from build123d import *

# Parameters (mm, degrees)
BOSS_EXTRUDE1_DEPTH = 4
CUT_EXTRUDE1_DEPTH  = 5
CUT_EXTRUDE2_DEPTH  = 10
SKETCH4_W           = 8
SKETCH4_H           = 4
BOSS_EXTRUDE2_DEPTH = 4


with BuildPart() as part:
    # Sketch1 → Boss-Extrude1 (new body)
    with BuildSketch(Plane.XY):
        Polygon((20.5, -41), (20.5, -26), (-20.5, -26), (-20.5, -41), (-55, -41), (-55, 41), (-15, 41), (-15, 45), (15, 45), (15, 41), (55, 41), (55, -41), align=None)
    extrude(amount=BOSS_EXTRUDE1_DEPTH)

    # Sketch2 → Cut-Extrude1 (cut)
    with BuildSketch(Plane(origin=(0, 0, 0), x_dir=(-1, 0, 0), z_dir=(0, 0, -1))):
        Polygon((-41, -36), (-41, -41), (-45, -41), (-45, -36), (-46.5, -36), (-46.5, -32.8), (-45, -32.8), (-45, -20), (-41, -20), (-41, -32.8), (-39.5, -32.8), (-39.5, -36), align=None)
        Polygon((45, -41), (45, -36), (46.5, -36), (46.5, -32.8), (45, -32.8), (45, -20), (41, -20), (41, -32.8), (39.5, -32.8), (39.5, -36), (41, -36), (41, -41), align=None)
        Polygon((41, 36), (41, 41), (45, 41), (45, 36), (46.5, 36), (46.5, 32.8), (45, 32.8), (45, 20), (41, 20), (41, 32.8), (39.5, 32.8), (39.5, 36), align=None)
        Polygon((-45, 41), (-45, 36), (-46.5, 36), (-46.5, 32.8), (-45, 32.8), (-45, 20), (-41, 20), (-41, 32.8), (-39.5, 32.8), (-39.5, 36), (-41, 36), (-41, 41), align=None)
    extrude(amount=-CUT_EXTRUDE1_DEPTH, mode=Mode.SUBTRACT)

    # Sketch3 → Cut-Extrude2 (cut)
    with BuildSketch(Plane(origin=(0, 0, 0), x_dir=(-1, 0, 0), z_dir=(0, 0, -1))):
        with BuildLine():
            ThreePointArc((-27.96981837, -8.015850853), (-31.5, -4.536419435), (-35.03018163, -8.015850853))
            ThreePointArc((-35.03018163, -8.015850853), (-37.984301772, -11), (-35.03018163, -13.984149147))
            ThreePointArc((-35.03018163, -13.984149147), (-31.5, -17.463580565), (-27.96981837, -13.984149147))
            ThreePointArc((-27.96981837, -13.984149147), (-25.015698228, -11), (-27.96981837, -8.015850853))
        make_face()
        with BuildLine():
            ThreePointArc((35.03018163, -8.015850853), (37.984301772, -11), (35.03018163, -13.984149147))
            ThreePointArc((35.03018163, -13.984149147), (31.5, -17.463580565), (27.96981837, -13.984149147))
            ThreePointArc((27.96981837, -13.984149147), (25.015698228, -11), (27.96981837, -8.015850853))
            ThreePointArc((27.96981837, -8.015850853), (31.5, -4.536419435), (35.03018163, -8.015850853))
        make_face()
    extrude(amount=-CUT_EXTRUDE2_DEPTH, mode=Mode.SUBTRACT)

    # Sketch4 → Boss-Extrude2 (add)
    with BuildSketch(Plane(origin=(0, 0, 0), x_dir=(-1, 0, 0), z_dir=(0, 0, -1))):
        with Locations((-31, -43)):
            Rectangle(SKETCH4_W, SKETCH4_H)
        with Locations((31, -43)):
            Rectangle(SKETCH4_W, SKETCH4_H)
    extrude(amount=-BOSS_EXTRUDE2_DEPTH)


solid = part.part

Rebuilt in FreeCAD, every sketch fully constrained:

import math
import FreeCAD as App
import Part
import Sketcher
from FreeCAD import Vector

doc = App.newDocument("Part")
body = doc.addObject("PartDesign::Body", "Body")

# Sketch on XY plane
sketch1 = body.newObject("Sketcher::SketchObject", "Sketch")
sketch1.AttachmentSupport = (doc.getObject("XY_Plane"), [""])
sketch1.MapMode = "FlatFace"
sketch1.addGeometry(Part.LineSegment(Vector(20.5, -26, 0), Vector(20.5, -41, 0)), False)
sketch1.addGeometry(Part.LineSegment(Vector(20.5, -41, 0), Vector(55, -41, 0)), False)
sketch1.addGeometry(Part.LineSegment(Vector(55, -41, 0), Vector(55, 41, 0)), False)
sketch1.addGeometry(Part.LineSegment(Vector(55, 41, 0), Vector(15, 41, 0)), False)
sketch1.addGeometry(Part.LineSegment(Vector(15, 41, 0), Vector(15, 45, 0)), False)
sketch1.addGeometry(Part.LineSegment(Vector(15, 45, 0), Vector(-15, 45, 0)), False)
sketch1.addGeometry(Part.LineSegment(Vector(-15, 45, 0), Vector(-15, 41, 0)), False)
sketch1.addGeometry(Part.LineSegment(Vector(-15, 41, 0), Vector(-55, 41, 0)), False)
sketch1.addGeometry(Part.LineSegment(Vector(-55, 41, 0), Vector(-55, -41, 0)), False)
sketch1.addGeometry(Part.LineSegment(Vector(-55, -41, 0), Vector(-20.5, -41, 0)), False)
sketch1.addGeometry(Part.LineSegment(Vector(-20.5, -41, 0), Vector(-20.5, -26, 0)), False)
sketch1.addGeometry(Part.LineSegment(Vector(-20.5, -26, 0), Vector(20.5, -26, 0)), False)
sketch1.addConstraint(Sketcher.Constraint("Coincident", 0, 2, 1, 1))
sketch1.addConstraint(Sketcher.Constraint("Coincident", 1, 2, 2, 1))
sketch1.addConstraint(Sketcher.Constraint("Coincident", 2, 2, 3, 1))
sketch1.addConstraint(Sketcher.Constraint("Coincident", 3, 2, 4, 1))
sketch1.addConstraint(Sketcher.Constraint("Coincident", 4, 2, 5, 1))
sketch1.addConstraint(Sketcher.Constraint("Coincident", 5, 2, 6, 1))
sketch1.addConstraint(Sketcher.Constraint("Coincident", 6, 2, 7, 1))
sketch1.addConstraint(Sketcher.Constraint("Coincident", 7, 2, 8, 1))
sketch1.addConstraint(Sketcher.Constraint("Coincident", 8, 2, 9, 1))
sketch1.addConstraint(Sketcher.Constraint("Coincident", 9, 2, 10, 1))
sketch1.addConstraint(Sketcher.Constraint("Coincident", 10, 2, 11, 1))
sketch1.addConstraint(Sketcher.Constraint("Coincident", 11, 2, 0, 1))
sketch1.addConstraint(Sketcher.Constraint("Vertical", 0))
sketch1.addConstraint(Sketcher.Constraint("Horizontal", 1))
sketch1.addConstraint(Sketcher.Constraint("Vertical", 2))
sketch1.addConstraint(Sketcher.Constraint("Horizontal", 3))
sketch1.addConstraint(Sketcher.Constraint("Vertical", 4))
sketch1.addConstraint(Sketcher.Constraint("Horizontal", 5))
sketch1.addConstraint(Sketcher.Constraint("Vertical", 6))
sketch1.addConstraint(Sketcher.Constraint("Horizontal", 7))
sketch1.addConstraint(Sketcher.Constraint("Vertical", 8))
sketch1.addConstraint(Sketcher.Constraint("Horizontal", 9))
sketch1.addConstraint(Sketcher.Constraint("Vertical", 10))
sketch1.addConstraint(Sketcher.Constraint("Horizontal", 11))
sketch1.addConstraint(Sketcher.Constraint("Symmetric", 1, 2, 7, 2, -1, 1))
sketch1.addConstraint(Sketcher.Constraint("Symmetric", 3, 2, 6, 2, -2))
sketch1.addConstraint(Sketcher.Constraint("Symmetric", 0, 2, 9, 2, -2))
sketch1.addConstraint(Sketcher.Constraint("DistanceX", 3, 2, 3, 1, 40.0))
sketch1.addConstraint(Sketcher.Constraint("DistanceX", 5, 2, 5, 1, 30.0))
sketch1.addConstraint(Sketcher.Constraint("DistanceX", 11, 1, 11, 2, 41.0))
sketch1.addConstraint(Sketcher.Constraint("DistanceY", 0, 2, 0, 1, 15.0))
sketch1.addConstraint(Sketcher.Constraint("DistanceY", 2, 1, 2, 2, 82.0))
sketch1.addConstraint(Sketcher.Constraint("DistanceY", 4, 1, 4, 2, 4.0))
pad1 = body.newObject("PartDesign::Pad", "Pad")
pad1.Profile = sketch1
pad1.Length = 4

# Sketch on XY plane
sketch2 = body.newObject("Sketcher::SketchObject", "Sketch001")
sketch2.AttachmentSupport = (doc.getObject("XY_Plane"), [""])
sketch2.MapMode = "FlatFace"
sketch2.addGeometry(Part.LineSegment(Vector(41, -41, 0), Vector(41, -36, 0)), False)
sketch2.addGeometry(Part.LineSegment(Vector(41, -36, 0), Vector(39.5, -36, 0)), False)
sketch2.addGeometry(Part.LineSegment(Vector(39.5, -36, 0), Vector(39.5, -32.8, 0)), False)
sketch2.addGeometry(Part.LineSegment(Vector(39.5, -32.8, 0), Vector(41, -32.8, 0)), False)
sketch2.addGeometry(Part.LineSegment(Vector(41, -32.8, 0), Vector(41, -20, 0)), False)
sketch2.addGeometry(Part.LineSegment(Vector(41, -20, 0), Vector(45, -20, 0)), False)
sketch2.addGeometry(Part.LineSegment(Vector(45, -20, 0), Vector(45, -32.8, 0)), False)
sketch2.addGeometry(Part.LineSegment(Vector(45, -32.8, 0), Vector(46.5, -32.8, 0)), False)
sketch2.addGeometry(Part.LineSegment(Vector(46.5, -32.8, 0), Vector(46.5, -36, 0)), False)
sketch2.addGeometry(Part.LineSegment(Vector(46.5, -36, 0), Vector(45, -36, 0)), False)
sketch2.addGeometry(Part.LineSegment(Vector(45, -36, 0), Vector(45, -41, 0)), False)
sketch2.addGeometry(Part.LineSegment(Vector(45, -41, 0), Vector(41, -41, 0)), False)
sketch2.addGeometry(Part.LineSegment(Vector(-45, -41, 0), Vector(-45, -36, 0)), False)
sketch2.addGeometry(Part.LineSegment(Vector(-45, -36, 0), Vector(-46.5, -36, 0)), False)
sketch2.addGeometry(Part.LineSegment(Vector(-46.5, -36, 0), Vector(-46.5, -32.8, 0)), False)
sketch2.addGeometry(Part.LineSegment(Vector(-46.5, -32.8, 0), Vector(-45, -32.8, 0)), False)
sketch2.addGeometry(Part.LineSegment(Vector(-45, -32.8, 0), Vector(-45, -20, 0)), False)
sketch2.addGeometry(Part.LineSegment(Vector(-45, -20, 0), Vector(-41, -20, 0)), False)
sketch2.addGeometry(Part.LineSegment(Vector(-41, -20, 0), Vector(-41, -32.8, 0)), False)
sketch2.addGeometry(Part.LineSegment(Vector(-41, -32.8, 0), Vector(-39.5, -32.8, 0)), False)
sketch2.addGeometry(Part.LineSegment(Vector(-39.5, -32.8, 0), Vector(-39.5, -36, 0)), False)
sketch2.addGeometry(Part.LineSegment(Vector(-39.5, -36, 0), Vector(-41, -36, 0)), False)
sketch2.addGeometry(Part.LineSegment(Vector(-41, -36, 0), Vector(-41, -41, 0)), False)
sketch2.addGeometry(Part.LineSegment(Vector(-41, -41, 0), Vector(-45, -41, 0)), False)
sketch2.addGeometry(Part.LineSegment(Vector(-41, 41, 0), Vector(-41, 36, 0)), False)
sketch2.addGeometry(Part.LineSegment(Vector(-41, 36, 0), Vector(-39.5, 36, 0)), False)
sketch2.addGeometry(Part.LineSegment(Vector(-39.5, 36, 0), Vector(-39.5, 32.8, 0)), False)
sketch2.addGeometry(Part.LineSegment(Vector(-39.5, 32.8, 0), Vector(-41, 32.8, 0)), False)
sketch2.addGeometry(Part.LineSegment(Vector(-41, 32.8, 0), Vector(-41, 20, 0)), False)
sketch2.addGeometry(Part.LineSegment(Vector(-41, 20, 0), Vector(-45, 20, 0)), False)
sketch2.addGeometry(Part.LineSegment(Vector(-45, 20, 0), Vector(-45, 32.8, 0)), False)
sketch2.addGeometry(Part.LineSegment(Vector(-45, 32.8, 0), Vector(-46.5, 32.8, 0)), False)
sketch2.addGeometry(Part.LineSegment(Vector(-46.5, 32.8, 0), Vector(-46.5, 36, 0)), False)
sketch2.addGeometry(Part.LineSegment(Vector(-46.5, 36, 0), Vector(-45, 36, 0)), False)
sketch2.addGeometry(Part.LineSegment(Vector(-45, 36, 0), Vector(-45, 41, 0)), False)
sketch2.addGeometry(Part.LineSegment(Vector(-45, 41, 0), Vector(-41, 41, 0)), False)
sketch2.addGeometry(Part.LineSegment(Vector(45, 41, 0), Vector(45, 36, 0)), False)
sketch2.addGeometry(Part.LineSegment(Vector(45, 36, 0), Vector(46.5, 36, 0)), False)
sketch2.addGeometry(Part.LineSegment(Vector(46.5, 36, 0), Vector(46.5, 32.8, 0)), False)
sketch2.addGeometry(Part.LineSegment(Vector(46.5, 32.8, 0), Vector(45, 32.8, 0)), False)
sketch2.addGeometry(Part.LineSegment(Vector(45, 32.8, 0), Vector(45, 20, 0)), False)
sketch2.addGeometry(Part.LineSegment(Vector(45, 20, 0), Vector(41, 20, 0)), False)
sketch2.addGeometry(Part.LineSegment(Vector(41, 20, 0), Vector(41, 32.8, 0)), False)
sketch2.addGeometry(Part.LineSegment(Vector(41, 32.8, 0), Vector(39.5, 32.8, 0)), False)
sketch2.addGeometry(Part.LineSegment(Vector(39.5, 32.8, 0), Vector(39.5, 36, 0)), False)
sketch2.addGeometry(Part.LineSegment(Vector(39.5, 36, 0), Vector(41, 36, 0)), False)
sketch2.addGeometry(Part.LineSegment(Vector(41, 36, 0), Vector(41, 41, 0)), False)
sketch2.addGeometry(Part.LineSegment(Vector(41, 41, 0), Vector(45, 41, 0)), False)
sketch2.addConstraint(Sketcher.Constraint("Coincident", 0, 2, 1, 1))
sketch2.addConstraint(Sketcher.Constraint("Coincident", 1, 2, 2, 1))
sketch2.addConstraint(Sketcher.Constraint("Coincident", 2, 2, 3, 1))
sketch2.addConstraint(Sketcher.Constraint("Coincident", 3, 2, 4, 1))
sketch2.addConstraint(Sketcher.Constraint("Coincident", 4, 2, 5, 1))
sketch2.addConstraint(Sketcher.Constraint("Coincident", 5, 2, 6, 1))
sketch2.addConstraint(Sketcher.Constraint("Coincident", 6, 2, 7, 1))
sketch2.addConstraint(Sketcher.Constraint("Coincident", 7, 2, 8, 1))
sketch2.addConstraint(Sketcher.Constraint("Coincident", 8, 2, 9, 1))
sketch2.addConstraint(Sketcher.Constraint("Coincident", 9, 2, 10, 1))
sketch2.addConstraint(Sketcher.Constraint("Coincident", 10, 2, 11, 1))
sketch2.addConstraint(Sketcher.Constraint("Coincident", 11, 2, 0, 1))
sketch2.addConstraint(Sketcher.Constraint("Coincident", 12, 2, 13, 1))
sketch2.addConstraint(Sketcher.Constraint("Coincident", 13, 2, 14, 1))
sketch2.addConstraint(Sketcher.Constraint("Coincident", 14, 2, 15, 1))
sketch2.addConstraint(Sketcher.Constraint("Coincident", 15, 2, 16, 1))
sketch2.addConstraint(Sketcher.Constraint("Coincident", 16, 2, 17, 1))
sketch2.addConstraint(Sketcher.Constraint("Coincident", 17, 2, 18, 1))
sketch2.addConstraint(Sketcher.Constraint("Coincident", 18, 2, 19, 1))
sketch2.addConstraint(Sketcher.Constraint("Coincident", 19, 2, 20, 1))
sketch2.addConstraint(Sketcher.Constraint("Coincident", 20, 2, 21, 1))
sketch2.addConstraint(Sketcher.Constraint("Coincident", 21, 2, 22, 1))
sketch2.addConstraint(Sketcher.Constraint("Coincident", 22, 2, 23, 1))
sketch2.addConstraint(Sketcher.Constraint("Coincident", 23, 2, 12, 1))
sketch2.addConstraint(Sketcher.Constraint("Coincident", 24, 2, 25, 1))
sketch2.addConstraint(Sketcher.Constraint("Coincident", 25, 2, 26, 1))
sketch2.addConstraint(Sketcher.Constraint("Coincident", 26, 2, 27, 1))
sketch2.addConstraint(Sketcher.Constraint("Coincident", 27, 2, 28, 1))
sketch2.addConstraint(Sketcher.Constraint("Coincident", 28, 2, 29, 1))
sketch2.addConstraint(Sketcher.Constraint("Coincident", 29, 2, 30, 1))
sketch2.addConstraint(Sketcher.Constraint("Coincident", 30, 2, 31, 1))
sketch2.addConstraint(Sketcher.Constraint("Coincident", 31, 2, 32, 1))
sketch2.addConstraint(Sketcher.Constraint("Coincident", 32, 2, 33, 1))
sketch2.addConstraint(Sketcher.Constraint("Coincident", 33, 2, 34, 1))
sketch2.addConstraint(Sketcher.Constraint("Coincident", 34, 2, 35, 1))
sketch2.addConstraint(Sketcher.Constraint("Coincident", 35, 2, 24, 1))
sketch2.addConstraint(Sketcher.Constraint("Coincident", 36, 2, 37, 1))
sketch2.addConstraint(Sketcher.Constraint("Coincident", 37, 2, 38, 1))
sketch2.addConstraint(Sketcher.Constraint("Coincident", 38, 2, 39, 1))
sketch2.addConstraint(Sketcher.Constraint("Coincident", 39, 2, 40, 1))
sketch2.addConstraint(Sketcher.Constraint("Coincident", 40, 2, 41, 1))
sketch2.addConstraint(Sketcher.Constraint("Coincident", 41, 2, 42, 1))
sketch2.addConstraint(Sketcher.Constraint("Coincident", 42, 2, 43, 1))
sketch2.addConstraint(Sketcher.Constraint("Coincident", 43, 2, 44, 1))
sketch2.addConstraint(Sketcher.Constraint("Coincident", 44, 2, 45, 1))
sketch2.addConstraint(Sketcher.Constraint("Coincident", 45, 2, 46, 1))
sketch2.addConstraint(Sketcher.Constraint("Coincident", 46, 2, 47, 1))
sketch2.addConstraint(Sketcher.Constraint("Coincident", 47, 2, 36, 1))
sketch2.addConstraint(Sketcher.Constraint("Vertical", 0))
sketch2.addConstraint(Sketcher.Constraint("Horizontal", 1))
sketch2.addConstraint(Sketcher.Constraint("Vertical", 2))
sketch2.addConstraint(Sketcher.Constraint("Horizontal", 3))
sketch2.addConstraint(Sketcher.Constraint("Vertical", 4))
sketch2.addConstraint(Sketcher.Constraint("Horizontal", 5))
sketch2.addConstraint(Sketcher.Constraint("Vertical", 6))
sketch2.addConstraint(Sketcher.Constraint("Horizontal", 7))
sketch2.addConstraint(Sketcher.Constraint("Vertical", 8))
sketch2.addConstraint(Sketcher.Constraint("Horizontal", 9))
sketch2.addConstraint(Sketcher.Constraint("Vertical", 10))
sketch2.addConstraint(Sketcher.Constraint("Horizontal", 11))
sketch2.addConstraint(Sketcher.Constraint("Vertical", 12))
sketch2.addConstraint(Sketcher.Constraint("Horizontal", 13))
sketch2.addConstraint(Sketcher.Constraint("Vertical", 14))
sketch2.addConstraint(Sketcher.Constraint("Horizontal", 15))
sketch2.addConstraint(Sketcher.Constraint("Vertical", 16))
sketch2.addConstraint(Sketcher.Constraint("Horizontal", 17))
sketch2.addConstraint(Sketcher.Constraint("Vertical", 18))
sketch2.addConstraint(Sketcher.Constraint("Horizontal", 19))
sketch2.addConstraint(Sketcher.Constraint("Vertical", 20))
sketch2.addConstraint(Sketcher.Constraint("Horizontal", 21))
sketch2.addConstraint(Sketcher.Constraint("Vertical", 22))
sketch2.addConstraint(Sketcher.Constraint("Horizontal", 23))
sketch2.addConstraint(Sketcher.Constraint("Vertical", 24))
sketch2.addConstraint(Sketcher.Constraint("Horizontal", 25))
sketch2.addConstraint(Sketcher.Constraint("Vertical", 26))
sketch2.addConstraint(Sketcher.Constraint("Horizontal", 27))
sketch2.addConstraint(Sketcher.Constraint("Vertical", 28))
sketch2.addConstraint(Sketcher.Constraint("Horizontal", 29))
sketch2.addConstraint(Sketcher.Constraint("Vertical", 30))
sketch2.addConstraint(Sketcher.Constraint("Horizontal", 31))
sketch2.addConstraint(Sketcher.Constraint("Vertical", 32))
sketch2.addConstraint(Sketcher.Constraint("Horizontal", 33))
sketch2.addConstraint(Sketcher.Constraint("Vertical", 34))
sketch2.addConstraint(Sketcher.Constraint("Horizontal", 35))
sketch2.addConstraint(Sketcher.Constraint("Vertical", 36))
sketch2.addConstraint(Sketcher.Constraint("Horizontal", 37))
sketch2.addConstraint(Sketcher.Constraint("Vertical", 38))
sketch2.addConstraint(Sketcher.Constraint("Horizontal", 39))
sketch2.addConstraint(Sketcher.Constraint("Vertical", 40))
sketch2.addConstraint(Sketcher.Constraint("Horizontal", 41))
sketch2.addConstraint(Sketcher.Constraint("Vertical", 42))
sketch2.addConstraint(Sketcher.Constraint("Horizontal", 43))
sketch2.addConstraint(Sketcher.Constraint("Vertical", 44))
sketch2.addConstraint(Sketcher.Constraint("Horizontal", 45))
sketch2.addConstraint(Sketcher.Constraint("Vertical", 46))
sketch2.addConstraint(Sketcher.Constraint("Horizontal", 47))
sketch2.addConstraint(Sketcher.Constraint("Symmetric", 0, 2, 24, 2, -1, 1))
sketch2.addConstraint(Sketcher.Constraint("Symmetric", 2, 2, 26, 2, -1, 1))
sketch2.addConstraint(Sketcher.Constraint("Symmetric", 4, 2, 28, 2, -1, 1))
sketch2.addConstraint(Sketcher.Constraint("Symmetric", 6, 2, 30, 2, -1, 1))
sketch2.addConstraint(Sketcher.Constraint("Symmetric", 8, 2, 32, 2, -1, 1))
sketch2.addConstraint(Sketcher.Constraint("Symmetric", 10, 2, 34, 2, -1, 1))
sketch2.addConstraint(Sketcher.Constraint("Symmetric", 12, 2, 36, 2, -1, 1))
sketch2.addConstraint(Sketcher.Constraint("Symmetric", 14, 2, 38, 2, -1, 1))
sketch2.addConstraint(Sketcher.Constraint("Symmetric", 16, 2, 40, 2, -1, 1))
sketch2.addConstraint(Sketcher.Constraint("Symmetric", 18, 2, 42, 2, -1, 1))
sketch2.addConstraint(Sketcher.Constraint("Symmetric", 20, 2, 44, 2, -1, 1))
sketch2.addConstraint(Sketcher.Constraint("Symmetric", 22, 2, 46, 2, -1, 1))
sketch2.addConstraint(Sketcher.Constraint("Symmetric", 9, 2, 12, 2, -2))
sketch2.addConstraint(Sketcher.Constraint("Symmetric", 7, 2, 14, 2, -2))
sketch2.addConstraint(Sketcher.Constraint("Symmetric", 5, 2, 16, 2, -2))
sketch2.addConstraint(Sketcher.Constraint("Symmetric", 3, 2, 18, 2, -2))
sketch2.addConstraint(Sketcher.Constraint("Symmetric", 1, 2, 20, 2, -2))
sketch2.addConstraint(Sketcher.Constraint("Symmetric", 11, 2, 22, 2, -2))
sketch2.addConstraint(Sketcher.Constraint("Horizontal", 3, 2, 6, 2))
sketch2.addConstraint(Sketcher.Constraint("Horizontal", 1, 2, 8, 2))
sketch2.addConstraint(Sketcher.Constraint("Vertical", 0, 2, 3, 2))
sketch2.addConstraint(Sketcher.Constraint("Vertical", 6, 2, 9, 2))
sketch2.addConstraint(Sketcher.Constraint("Equal", 3, 7))
sketch2.addConstraint(Sketcher.Constraint("DistanceX", 5, 1, 5, 2, 4.0))
sketch2.addConstraint(Sketcher.Constraint("DistanceY", 0, 1, 0, 2, 5.0))
sketch2.addConstraint(Sketcher.Constraint("DistanceX", 1, 2, 1, 1, 1.5))
sketch2.addConstraint(Sketcher.Constraint("DistanceY", 2, 1, 2, 2, 3.2))
sketch2.addConstraint(Sketcher.Constraint("DistanceY", 4, 1, 4, 2, 12.8))
sketch2.addConstraint(Sketcher.Constraint("DistanceX", -1, 1, 0, 2, 41.0))
sketch2.addConstraint(Sketcher.Constraint("DistanceY", 0, 2, -1, 1, 36.0))
pocket1 = body.newObject("PartDesign::Pocket", "Pocket")
pocket1.Profile = sketch2
pocket1.Length = 5
pocket1.Reversed = True

# Sketch on XY plane
sketch3 = body.newObject("Sketcher::SketchObject", "Sketch002")
sketch3.AttachmentSupport = (doc.getObject("XY_Plane"), [""])
sketch3.MapMode = "FlatFace"
sketch3.addGeometry(Part.ArcOfCircle(Part.Circle(Vector(31.5, -8.066971, 0), Vector(0, 0, 1), 3.530552), math.radians(0.829638), math.radians(179.170362)), False)
sketch3.addGeometry(Part.ArcOfCircle(Part.Circle(Vector(35, -11, 0), Vector(0, 0, 1), 2.984302), math.radians(-89.420531), math.radians(89.420531)), False)
sketch3.addGeometry(Part.ArcOfCircle(Part.Circle(Vector(31.5, -13.933029, 0), Vector(0, 0, 1), 3.530552), math.radians(-179.170362), math.radians(-0.829638)), False)
sketch3.addGeometry(Part.ArcOfCircle(Part.Circle(Vector(28, -11, 0), Vector(0, 0, 1), 2.984302), math.radians(90.579469), math.radians(269.420531)), False)
sketch3.addGeometry(Part.ArcOfCircle(Part.Circle(Vector(-35, -11, 0), Vector(0, 0, 1), 2.984302), math.radians(90.579469), math.radians(269.420531)), False)
sketch3.addGeometry(Part.ArcOfCircle(Part.Circle(Vector(-31.5, -8.066971, 0), Vector(0, 0, 1), 3.530552), math.radians(0.829638), math.radians(179.170362)), False)
sketch3.addGeometry(Part.ArcOfCircle(Part.Circle(Vector(-28, -11, 0), Vector(0, 0, 1), 2.984302), math.radians(-89.420531), math.radians(89.420531)), False)
sketch3.addGeometry(Part.ArcOfCircle(Part.Circle(Vector(-31.5, -13.933029, 0), Vector(0, 0, 1), 3.530552), math.radians(-179.170362), math.radians(-0.829638)), False)
sketch3.addConstraint(Sketcher.Constraint("Coincident", 0, 1, 1, 2))
sketch3.addConstraint(Sketcher.Constraint("Coincident", 1, 1, 2, 2))
sketch3.addConstraint(Sketcher.Constraint("Coincident", 2, 1, 3, 2))
sketch3.addConstraint(Sketcher.Constraint("Coincident", 3, 1, 0, 2))
sketch3.addConstraint(Sketcher.Constraint("Coincident", 4, 1, 5, 2))
sketch3.addConstraint(Sketcher.Constraint("Coincident", 5, 1, 6, 2))
sketch3.addConstraint(Sketcher.Constraint("Coincident", 6, 1, 7, 2))
sketch3.addConstraint(Sketcher.Constraint("Coincident", 7, 1, 4, 2))
sketch3.addConstraint(Sketcher.Constraint("Equal", 0, 2))
sketch3.addConstraint(Sketcher.Constraint("Equal", 1, 3))
sketch3.addConstraint(Sketcher.Constraint("Equal", 3, 4))
sketch3.addConstraint(Sketcher.Constraint("Equal", 2, 5))
sketch3.addConstraint(Sketcher.Constraint("Equal", 4, 6))
sketch3.addConstraint(Sketcher.Constraint("Equal", 5, 7))
sketch3.addConstraint(Sketcher.Constraint("Symmetric", 1, 3, 4, 3, -2))
sketch3.addConstraint(Sketcher.Constraint("Symmetric", 0, 3, 5, 3, -2))
sketch3.addConstraint(Sketcher.Constraint("Symmetric", 3, 3, 6, 3, -2))
sketch3.addConstraint(Sketcher.Constraint("Symmetric", 2, 3, 7, 3, -2))
sketch3.addConstraint(Sketcher.Constraint("Horizontal", 1, 3, 3, 3))
sketch3.addConstraint(Sketcher.Constraint("Horizontal", 1, 1, 2, 1))
sketch3.addConstraint(Sketcher.Constraint("Horizontal", 0, 1, 3, 1))
sketch3.addConstraint(Sketcher.Constraint("Vertical", 0, 1, 1, 1))
sketch3.addConstraint(Sketcher.Constraint("DistanceX", -1, 1, 1, 3, 35.0))
sketch3.addConstraint(Sketcher.Constraint("DistanceY", 1, 3, -1, 1, 11.0))
sketch3.addConstraint(Sketcher.Constraint("DistanceX", -1, 1, 3, 3, 28.0))
sketch3.addConstraint(Sketcher.Constraint("Radius", 1, 2.984302))
sketch3.addConstraint(Sketcher.Constraint("Radius", 0, 3.530552))
sketch3.addConstraint(Sketcher.Constraint("DistanceY", 0, 3, -1, 1, 8.066971))
pocket2 = body.newObject("PartDesign::Pocket", "Pocket001")
pocket2.Profile = sketch3
pocket2.Length = 10
pocket2.Reversed = True

# Sketch on XY plane
sketch4 = body.newObject("Sketcher::SketchObject", "Sketch003")
sketch4.AttachmentSupport = (doc.getObject("XY_Plane"), [""])
sketch4.MapMode = "FlatFace"
sketch4.addGeometry(Part.LineSegment(Vector(35, -41, 0), Vector(35, -45, 0)), False)
sketch4.addGeometry(Part.LineSegment(Vector(35, -45, 0), Vector(27, -45, 0)), False)
sketch4.addGeometry(Part.LineSegment(Vector(27, -45, 0), Vector(27, -41, 0)), False)
sketch4.addGeometry(Part.LineSegment(Vector(27, -41, 0), Vector(35, -41, 0)), False)
sketch4.addGeometry(Part.LineSegment(Vector(-27, -41, 0), Vector(-27, -45, 0)), False)
sketch4.addGeometry(Part.LineSegment(Vector(-27, -45, 0), Vector(-35, -45, 0)), False)
sketch4.addGeometry(Part.LineSegment(Vector(-35, -45, 0), Vector(-35, -41, 0)), False)
sketch4.addGeometry(Part.LineSegment(Vector(-35, -41, 0), Vector(-27, -41, 0)), False)
sketch4.addConstraint(Sketcher.Constraint("Coincident", 0, 2, 1, 1))
sketch4.addConstraint(Sketcher.Constraint("Coincident", 1, 2, 2, 1))
sketch4.addConstraint(Sketcher.Constraint("Coincident", 2, 2, 3, 1))
sketch4.addConstraint(Sketcher.Constraint("Coincident", 3, 2, 0, 1))
sketch4.addConstraint(Sketcher.Constraint("Coincident", 4, 2, 5, 1))
sketch4.addConstraint(Sketcher.Constraint("Coincident", 5, 2, 6, 1))
sketch4.addConstraint(Sketcher.Constraint("Coincident", 6, 2, 7, 1))
sketch4.addConstraint(Sketcher.Constraint("Coincident", 7, 2, 4, 1))
sketch4.addConstraint(Sketcher.Constraint("Vertical", 0))
sketch4.addConstraint(Sketcher.Constraint("Horizontal", 1))
sketch4.addConstraint(Sketcher.Constraint("Vertical", 2))
sketch4.addConstraint(Sketcher.Constraint("Horizontal", 3))
sketch4.addConstraint(Sketcher.Constraint("Vertical", 4))
sketch4.addConstraint(Sketcher.Constraint("Horizontal", 5))
sketch4.addConstraint(Sketcher.Constraint("Vertical", 6))
sketch4.addConstraint(Sketcher.Constraint("Horizontal", 7))
sketch4.addConstraint(Sketcher.Constraint("Symmetric", 1, 2, 4, 2, -2))
sketch4.addConstraint(Sketcher.Constraint("Symmetric", 3, 2, 6, 2, -2))
sketch4.addConstraint(Sketcher.Constraint("DistanceX", 1, 2, 1, 1, 8.0))
sketch4.addConstraint(Sketcher.Constraint("DistanceY", 0, 2, 0, 1, 4.0))
sketch4.addConstraint(Sketcher.Constraint("DistanceX", -1, 1, 0, 2, 35.0))
sketch4.addConstraint(Sketcher.Constraint("DistanceY", 0, 2, -1, 1, 45.0))
pad2 = body.newObject("PartDesign::Pad", "Pad001")
pad2.Profile = sketch4
pad2.Length = 4

doc.recompute()
